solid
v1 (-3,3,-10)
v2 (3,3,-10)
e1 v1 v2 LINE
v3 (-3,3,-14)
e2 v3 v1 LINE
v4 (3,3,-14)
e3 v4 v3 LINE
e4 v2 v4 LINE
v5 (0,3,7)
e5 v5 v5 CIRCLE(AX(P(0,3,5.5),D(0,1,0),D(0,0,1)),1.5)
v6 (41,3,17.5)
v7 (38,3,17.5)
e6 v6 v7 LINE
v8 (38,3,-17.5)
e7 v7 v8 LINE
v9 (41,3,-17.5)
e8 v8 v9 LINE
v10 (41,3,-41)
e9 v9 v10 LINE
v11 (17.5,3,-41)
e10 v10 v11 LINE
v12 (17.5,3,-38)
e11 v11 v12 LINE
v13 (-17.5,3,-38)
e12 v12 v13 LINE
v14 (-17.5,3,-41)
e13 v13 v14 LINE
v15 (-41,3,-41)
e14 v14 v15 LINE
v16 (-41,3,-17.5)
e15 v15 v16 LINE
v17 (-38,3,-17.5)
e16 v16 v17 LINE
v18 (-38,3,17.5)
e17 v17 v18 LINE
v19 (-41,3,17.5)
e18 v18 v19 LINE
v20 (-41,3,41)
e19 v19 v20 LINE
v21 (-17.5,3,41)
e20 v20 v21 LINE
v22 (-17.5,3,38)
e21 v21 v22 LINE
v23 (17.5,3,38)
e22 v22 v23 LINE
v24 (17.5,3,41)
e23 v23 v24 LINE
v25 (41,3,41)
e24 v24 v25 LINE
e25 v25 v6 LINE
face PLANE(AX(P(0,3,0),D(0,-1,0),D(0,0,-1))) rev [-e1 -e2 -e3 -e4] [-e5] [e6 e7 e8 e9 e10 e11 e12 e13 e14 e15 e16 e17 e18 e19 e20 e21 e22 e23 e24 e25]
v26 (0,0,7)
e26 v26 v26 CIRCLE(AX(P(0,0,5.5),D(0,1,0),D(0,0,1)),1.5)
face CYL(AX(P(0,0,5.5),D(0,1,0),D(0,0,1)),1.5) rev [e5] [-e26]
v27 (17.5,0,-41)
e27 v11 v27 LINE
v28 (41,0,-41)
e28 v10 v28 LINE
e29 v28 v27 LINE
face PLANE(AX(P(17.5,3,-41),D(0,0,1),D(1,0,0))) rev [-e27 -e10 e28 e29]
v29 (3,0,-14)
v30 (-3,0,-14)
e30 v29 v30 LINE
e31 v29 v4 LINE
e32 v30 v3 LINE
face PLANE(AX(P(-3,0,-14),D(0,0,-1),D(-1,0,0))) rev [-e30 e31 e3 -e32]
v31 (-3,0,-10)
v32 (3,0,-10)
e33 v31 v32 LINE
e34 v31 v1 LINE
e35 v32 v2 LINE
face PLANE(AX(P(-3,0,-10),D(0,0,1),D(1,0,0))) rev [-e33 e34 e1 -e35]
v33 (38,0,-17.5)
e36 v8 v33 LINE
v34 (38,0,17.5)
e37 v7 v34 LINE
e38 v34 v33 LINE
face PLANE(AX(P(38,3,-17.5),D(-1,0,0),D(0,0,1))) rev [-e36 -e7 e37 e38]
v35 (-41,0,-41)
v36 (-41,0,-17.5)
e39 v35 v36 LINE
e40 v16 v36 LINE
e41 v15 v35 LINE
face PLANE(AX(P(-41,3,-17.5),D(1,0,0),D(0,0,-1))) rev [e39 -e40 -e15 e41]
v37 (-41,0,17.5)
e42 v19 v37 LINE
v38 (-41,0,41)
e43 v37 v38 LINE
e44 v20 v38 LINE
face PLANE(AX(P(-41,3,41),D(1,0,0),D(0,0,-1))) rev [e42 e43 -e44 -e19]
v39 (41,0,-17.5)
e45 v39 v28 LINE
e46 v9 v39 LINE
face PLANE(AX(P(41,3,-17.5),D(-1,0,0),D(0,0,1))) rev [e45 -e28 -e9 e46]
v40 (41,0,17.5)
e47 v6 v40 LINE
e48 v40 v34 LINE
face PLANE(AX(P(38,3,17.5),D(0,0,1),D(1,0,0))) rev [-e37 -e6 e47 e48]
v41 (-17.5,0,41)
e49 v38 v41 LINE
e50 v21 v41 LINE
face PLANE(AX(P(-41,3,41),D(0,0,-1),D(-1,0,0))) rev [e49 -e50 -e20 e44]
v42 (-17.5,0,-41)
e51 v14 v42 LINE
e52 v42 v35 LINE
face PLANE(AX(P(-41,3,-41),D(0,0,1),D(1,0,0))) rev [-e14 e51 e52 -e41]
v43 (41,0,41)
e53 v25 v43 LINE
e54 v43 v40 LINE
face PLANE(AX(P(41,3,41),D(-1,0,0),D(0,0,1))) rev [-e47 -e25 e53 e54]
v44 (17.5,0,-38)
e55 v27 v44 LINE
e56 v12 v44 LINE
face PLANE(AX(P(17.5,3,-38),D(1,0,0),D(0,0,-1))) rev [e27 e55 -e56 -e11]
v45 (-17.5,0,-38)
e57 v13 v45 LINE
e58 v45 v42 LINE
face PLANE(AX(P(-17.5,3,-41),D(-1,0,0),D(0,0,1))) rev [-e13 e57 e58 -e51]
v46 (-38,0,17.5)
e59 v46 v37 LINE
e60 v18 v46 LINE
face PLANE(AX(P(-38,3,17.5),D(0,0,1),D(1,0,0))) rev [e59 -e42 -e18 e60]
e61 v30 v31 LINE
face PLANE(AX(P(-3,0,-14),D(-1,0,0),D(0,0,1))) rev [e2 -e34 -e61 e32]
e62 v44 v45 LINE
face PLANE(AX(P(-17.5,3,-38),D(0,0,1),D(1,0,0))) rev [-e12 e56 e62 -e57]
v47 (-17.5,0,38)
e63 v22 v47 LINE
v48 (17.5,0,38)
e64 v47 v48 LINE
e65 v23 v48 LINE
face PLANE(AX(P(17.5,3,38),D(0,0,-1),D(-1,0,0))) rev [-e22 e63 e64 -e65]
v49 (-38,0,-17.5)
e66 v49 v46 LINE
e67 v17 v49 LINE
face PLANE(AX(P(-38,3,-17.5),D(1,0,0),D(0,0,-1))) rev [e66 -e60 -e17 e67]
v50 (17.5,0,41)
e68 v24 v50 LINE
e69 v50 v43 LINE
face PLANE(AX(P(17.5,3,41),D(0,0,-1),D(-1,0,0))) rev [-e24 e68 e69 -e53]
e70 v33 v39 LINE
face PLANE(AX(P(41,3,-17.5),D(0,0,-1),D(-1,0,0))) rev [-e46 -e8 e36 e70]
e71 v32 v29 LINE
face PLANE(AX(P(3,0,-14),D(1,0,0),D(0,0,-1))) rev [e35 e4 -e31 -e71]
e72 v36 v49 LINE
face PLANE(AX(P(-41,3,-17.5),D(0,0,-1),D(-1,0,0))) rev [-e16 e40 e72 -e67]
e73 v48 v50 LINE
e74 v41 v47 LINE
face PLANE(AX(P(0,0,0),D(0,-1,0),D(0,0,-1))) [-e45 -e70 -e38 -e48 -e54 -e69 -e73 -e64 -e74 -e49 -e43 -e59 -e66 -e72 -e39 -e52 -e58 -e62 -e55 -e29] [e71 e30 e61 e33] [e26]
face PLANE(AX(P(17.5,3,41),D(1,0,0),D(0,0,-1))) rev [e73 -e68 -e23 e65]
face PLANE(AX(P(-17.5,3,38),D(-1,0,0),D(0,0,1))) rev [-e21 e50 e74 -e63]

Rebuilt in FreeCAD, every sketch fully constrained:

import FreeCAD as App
import Part
import Sketcher

V = App.Vector


def add_polygon(sketch, points):
    """Adds a closed chain of lines whose ends are joined by coincident constraints."""
    first, n = sketch.GeometryCount, len(points)
    for a, b in zip(points, points[1:] + points[:1]):
        sketch.addGeometry(Part.LineSegment(App.Vector(*a, 0), App.Vector(*b, 0)), False)
    for i in range(n):
        sketch.addConstraint(Sketcher.Constraint("Coincident", first + i, 2, first + (i + 1) % n, 1))

doc = App.newDocument("Part")
body = doc.addObject("PartDesign::Body", "Body")

# Sketch on XZ plane
sketch1 = doc.addObject("Sketcher::SketchObject", "Sketch")
body.addObject(sketch1)
sketch1.AttachmentSupport = (doc.XZ_Plane, [""])
sketch1.MapMode = "FlatFace"
add_polygon(sketch1, [(-41, 41), (-17.5, 41), (-17.5, 38), (17.5, 38), (17.5, 41), (41, 41), (41, 17.5), (38, 17.5), (38, -17.5), (41, -17.5), (41, -41), (17.5, -41), (17.5, -38), (-17.5, -38), (-17.5, -41), (-41, -41), (-41, -17.5), (-38, -17.5), (-38, 17.5), (-41, 17.5)])  # lines 0-19
sketch1.addConstraint(Sketcher.Constraint("Horizontal", 0))
sketch1.addConstraint(Sketcher.Constraint("Vertical", 1))
sketch1.addConstraint(Sketcher.Constraint("Horizontal", 2))
sketch1.addConstraint(Sketcher.Constraint("Vertical", 3))
sketch1.addConstraint(Sketcher.Constraint("Horizontal", 4))
sketch1.addConstraint(Sketcher.Constraint("Vertical", 5))
sketch1.addConstraint(Sketcher.Constraint("Horizontal", 6))
sketch1.addConstraint(Sketcher.Constraint("Vertical", 7))
sketch1.addConstraint(Sketcher.Constraint("Horizontal", 8))
sketch1.addConstraint(Sketcher.Constraint("Vertical", 9))
sketch1.addConstraint(Sketcher.Constraint("Horizontal", 10))
sketch1.addConstraint(Sketcher.Constraint("Vertical", 11))
sketch1.addConstraint(Sketcher.Constraint("Horizontal", 12))
sketch1.addConstraint(Sketcher.Constraint("Vertical", 13))
sketch1.addConstraint(Sketcher.Constraint("Horizontal", 14))
sketch1.addConstraint(Sketcher.Constraint("Vertical", 15))
sketch1.addConstraint(Sketcher.Constraint("Horizontal", 16))
sketch1.addConstraint(Sketcher.Constraint("Vertical", 17))
sketch1.addConstraint(Sketcher.Constraint("Horizontal", 18))
sketch1.addConstraint(Sketcher.Constraint("Vertical", 19))
sketch1.addConstraint(Sketcher.Constraint("Symmetric", 0, 2, 10, 2, -1, 1))
sketch1.addConstraint(Sketcher.Constraint("Symmetric", 2, 2, 12, 2, -1, 1))
sketch1.addConstraint(Sketcher.Constraint("Symmetric", 4, 2, 14, 2, -1, 1))
sketch1.addConstraint(Sketcher.Constraint("Symmetric", 6, 2, 16, 2, -1, 1))
sketch1.addConstraint(Sketcher.Constraint("Symmetric", 8, 2, 18, 2, -1, 1))
sketch1.addConstraint(Sketcher.Constraint("Symmetric", 0, 2, 3, 2, -2))
sketch1.addConstraint(Sketcher.Constraint("Symmetric", 8, 2, 15, 2, -2))
sketch1.addConstraint(Sketcher.Constraint("Equal", 18, 1))
sketch1.addConstraint(Sketcher.Constraint("Equal", 14, 5))
sketch1.addConstraint(Sketcher.Constraint("Equal", 12, 7))
sketch1.addConstraint(Sketcher.Constraint("DistanceX", 2, 1, 2, 2, 35.0))
sketch1.addConstraint(Sketcher.Constraint("DistanceX", 6, 2, 6, 1, 3.0))
sketch1.addConstraint(Sketcher.Constraint("DistanceX", 0, 1, 0, 2, 23.5))
pad1 = doc.addObject("PartDesign::Pad", "Pad")
body.addObject(pad1)
pad1.Profile = sketch1
pad1.Length = 3
pad1.Reversed = True

# Sketch on XZ plane
sketch2 = doc.addObject("Sketcher::SketchObject", "Sketch001")
body.addObject(sketch2)
sketch2.AttachmentSupport = (doc.XZ_Plane, [""])
sketch2.MapMode = "FlatFace"
sketch2.AttachmentOffset = App.Placement(V(0, 0, -3), App.Rotation())
sketch2.addGeometry(Part.Circle(V(0, 5.5, 0), V(0, 0, 1), 1.5), False)  # 0
add_polygon(sketch2, [(-3, -14), (-3, -10), (3, -10), (3, -14)])  # lines 1-4
sketch2.addConstraint(Sketcher.Constraint("Vertical", 1))
sketch2.addConstraint(Sketcher.Constraint("Horizontal", 2))
sketch2.addConstraint(Sketcher.Constraint("Vertical", 3))
sketch2.addConstraint(Sketcher.Constraint("Horizontal", 4))
sketch2.addConstraint(Sketcher.Constraint("PointOnObject", 0, 3, -2))
sketch2.addConstraint(Sketcher.Constraint("Diameter", 0, 3.0))
sketch2.addConstraint(Sketcher.Constraint("DistanceX", 2, 1, 2, 2, 6.0))
sketch2.addConstraint(Sketcher.Constraint("DistanceY", 1, 1, 1, 2, 4.0))
sketch2.addConstraint(Sketcher.Constraint("DistanceX", 1, 2, -1, 1, 3.0))
sketch2.addConstraint(Sketcher.Constraint("DistanceY", 1, 2, -1, 1, 10.0))
sketch2.addConstraint(Sketcher.Constraint("DistanceY", -1, 1, 0, 3, 5.5))
pocket1 = doc.addObject("PartDesign::Pocket", "Pocket")
body.addObject(pocket1)
pocket1.Profile = sketch2
pocket1.Length = 3
pocket1.Reversed = True

doc.recompute()
